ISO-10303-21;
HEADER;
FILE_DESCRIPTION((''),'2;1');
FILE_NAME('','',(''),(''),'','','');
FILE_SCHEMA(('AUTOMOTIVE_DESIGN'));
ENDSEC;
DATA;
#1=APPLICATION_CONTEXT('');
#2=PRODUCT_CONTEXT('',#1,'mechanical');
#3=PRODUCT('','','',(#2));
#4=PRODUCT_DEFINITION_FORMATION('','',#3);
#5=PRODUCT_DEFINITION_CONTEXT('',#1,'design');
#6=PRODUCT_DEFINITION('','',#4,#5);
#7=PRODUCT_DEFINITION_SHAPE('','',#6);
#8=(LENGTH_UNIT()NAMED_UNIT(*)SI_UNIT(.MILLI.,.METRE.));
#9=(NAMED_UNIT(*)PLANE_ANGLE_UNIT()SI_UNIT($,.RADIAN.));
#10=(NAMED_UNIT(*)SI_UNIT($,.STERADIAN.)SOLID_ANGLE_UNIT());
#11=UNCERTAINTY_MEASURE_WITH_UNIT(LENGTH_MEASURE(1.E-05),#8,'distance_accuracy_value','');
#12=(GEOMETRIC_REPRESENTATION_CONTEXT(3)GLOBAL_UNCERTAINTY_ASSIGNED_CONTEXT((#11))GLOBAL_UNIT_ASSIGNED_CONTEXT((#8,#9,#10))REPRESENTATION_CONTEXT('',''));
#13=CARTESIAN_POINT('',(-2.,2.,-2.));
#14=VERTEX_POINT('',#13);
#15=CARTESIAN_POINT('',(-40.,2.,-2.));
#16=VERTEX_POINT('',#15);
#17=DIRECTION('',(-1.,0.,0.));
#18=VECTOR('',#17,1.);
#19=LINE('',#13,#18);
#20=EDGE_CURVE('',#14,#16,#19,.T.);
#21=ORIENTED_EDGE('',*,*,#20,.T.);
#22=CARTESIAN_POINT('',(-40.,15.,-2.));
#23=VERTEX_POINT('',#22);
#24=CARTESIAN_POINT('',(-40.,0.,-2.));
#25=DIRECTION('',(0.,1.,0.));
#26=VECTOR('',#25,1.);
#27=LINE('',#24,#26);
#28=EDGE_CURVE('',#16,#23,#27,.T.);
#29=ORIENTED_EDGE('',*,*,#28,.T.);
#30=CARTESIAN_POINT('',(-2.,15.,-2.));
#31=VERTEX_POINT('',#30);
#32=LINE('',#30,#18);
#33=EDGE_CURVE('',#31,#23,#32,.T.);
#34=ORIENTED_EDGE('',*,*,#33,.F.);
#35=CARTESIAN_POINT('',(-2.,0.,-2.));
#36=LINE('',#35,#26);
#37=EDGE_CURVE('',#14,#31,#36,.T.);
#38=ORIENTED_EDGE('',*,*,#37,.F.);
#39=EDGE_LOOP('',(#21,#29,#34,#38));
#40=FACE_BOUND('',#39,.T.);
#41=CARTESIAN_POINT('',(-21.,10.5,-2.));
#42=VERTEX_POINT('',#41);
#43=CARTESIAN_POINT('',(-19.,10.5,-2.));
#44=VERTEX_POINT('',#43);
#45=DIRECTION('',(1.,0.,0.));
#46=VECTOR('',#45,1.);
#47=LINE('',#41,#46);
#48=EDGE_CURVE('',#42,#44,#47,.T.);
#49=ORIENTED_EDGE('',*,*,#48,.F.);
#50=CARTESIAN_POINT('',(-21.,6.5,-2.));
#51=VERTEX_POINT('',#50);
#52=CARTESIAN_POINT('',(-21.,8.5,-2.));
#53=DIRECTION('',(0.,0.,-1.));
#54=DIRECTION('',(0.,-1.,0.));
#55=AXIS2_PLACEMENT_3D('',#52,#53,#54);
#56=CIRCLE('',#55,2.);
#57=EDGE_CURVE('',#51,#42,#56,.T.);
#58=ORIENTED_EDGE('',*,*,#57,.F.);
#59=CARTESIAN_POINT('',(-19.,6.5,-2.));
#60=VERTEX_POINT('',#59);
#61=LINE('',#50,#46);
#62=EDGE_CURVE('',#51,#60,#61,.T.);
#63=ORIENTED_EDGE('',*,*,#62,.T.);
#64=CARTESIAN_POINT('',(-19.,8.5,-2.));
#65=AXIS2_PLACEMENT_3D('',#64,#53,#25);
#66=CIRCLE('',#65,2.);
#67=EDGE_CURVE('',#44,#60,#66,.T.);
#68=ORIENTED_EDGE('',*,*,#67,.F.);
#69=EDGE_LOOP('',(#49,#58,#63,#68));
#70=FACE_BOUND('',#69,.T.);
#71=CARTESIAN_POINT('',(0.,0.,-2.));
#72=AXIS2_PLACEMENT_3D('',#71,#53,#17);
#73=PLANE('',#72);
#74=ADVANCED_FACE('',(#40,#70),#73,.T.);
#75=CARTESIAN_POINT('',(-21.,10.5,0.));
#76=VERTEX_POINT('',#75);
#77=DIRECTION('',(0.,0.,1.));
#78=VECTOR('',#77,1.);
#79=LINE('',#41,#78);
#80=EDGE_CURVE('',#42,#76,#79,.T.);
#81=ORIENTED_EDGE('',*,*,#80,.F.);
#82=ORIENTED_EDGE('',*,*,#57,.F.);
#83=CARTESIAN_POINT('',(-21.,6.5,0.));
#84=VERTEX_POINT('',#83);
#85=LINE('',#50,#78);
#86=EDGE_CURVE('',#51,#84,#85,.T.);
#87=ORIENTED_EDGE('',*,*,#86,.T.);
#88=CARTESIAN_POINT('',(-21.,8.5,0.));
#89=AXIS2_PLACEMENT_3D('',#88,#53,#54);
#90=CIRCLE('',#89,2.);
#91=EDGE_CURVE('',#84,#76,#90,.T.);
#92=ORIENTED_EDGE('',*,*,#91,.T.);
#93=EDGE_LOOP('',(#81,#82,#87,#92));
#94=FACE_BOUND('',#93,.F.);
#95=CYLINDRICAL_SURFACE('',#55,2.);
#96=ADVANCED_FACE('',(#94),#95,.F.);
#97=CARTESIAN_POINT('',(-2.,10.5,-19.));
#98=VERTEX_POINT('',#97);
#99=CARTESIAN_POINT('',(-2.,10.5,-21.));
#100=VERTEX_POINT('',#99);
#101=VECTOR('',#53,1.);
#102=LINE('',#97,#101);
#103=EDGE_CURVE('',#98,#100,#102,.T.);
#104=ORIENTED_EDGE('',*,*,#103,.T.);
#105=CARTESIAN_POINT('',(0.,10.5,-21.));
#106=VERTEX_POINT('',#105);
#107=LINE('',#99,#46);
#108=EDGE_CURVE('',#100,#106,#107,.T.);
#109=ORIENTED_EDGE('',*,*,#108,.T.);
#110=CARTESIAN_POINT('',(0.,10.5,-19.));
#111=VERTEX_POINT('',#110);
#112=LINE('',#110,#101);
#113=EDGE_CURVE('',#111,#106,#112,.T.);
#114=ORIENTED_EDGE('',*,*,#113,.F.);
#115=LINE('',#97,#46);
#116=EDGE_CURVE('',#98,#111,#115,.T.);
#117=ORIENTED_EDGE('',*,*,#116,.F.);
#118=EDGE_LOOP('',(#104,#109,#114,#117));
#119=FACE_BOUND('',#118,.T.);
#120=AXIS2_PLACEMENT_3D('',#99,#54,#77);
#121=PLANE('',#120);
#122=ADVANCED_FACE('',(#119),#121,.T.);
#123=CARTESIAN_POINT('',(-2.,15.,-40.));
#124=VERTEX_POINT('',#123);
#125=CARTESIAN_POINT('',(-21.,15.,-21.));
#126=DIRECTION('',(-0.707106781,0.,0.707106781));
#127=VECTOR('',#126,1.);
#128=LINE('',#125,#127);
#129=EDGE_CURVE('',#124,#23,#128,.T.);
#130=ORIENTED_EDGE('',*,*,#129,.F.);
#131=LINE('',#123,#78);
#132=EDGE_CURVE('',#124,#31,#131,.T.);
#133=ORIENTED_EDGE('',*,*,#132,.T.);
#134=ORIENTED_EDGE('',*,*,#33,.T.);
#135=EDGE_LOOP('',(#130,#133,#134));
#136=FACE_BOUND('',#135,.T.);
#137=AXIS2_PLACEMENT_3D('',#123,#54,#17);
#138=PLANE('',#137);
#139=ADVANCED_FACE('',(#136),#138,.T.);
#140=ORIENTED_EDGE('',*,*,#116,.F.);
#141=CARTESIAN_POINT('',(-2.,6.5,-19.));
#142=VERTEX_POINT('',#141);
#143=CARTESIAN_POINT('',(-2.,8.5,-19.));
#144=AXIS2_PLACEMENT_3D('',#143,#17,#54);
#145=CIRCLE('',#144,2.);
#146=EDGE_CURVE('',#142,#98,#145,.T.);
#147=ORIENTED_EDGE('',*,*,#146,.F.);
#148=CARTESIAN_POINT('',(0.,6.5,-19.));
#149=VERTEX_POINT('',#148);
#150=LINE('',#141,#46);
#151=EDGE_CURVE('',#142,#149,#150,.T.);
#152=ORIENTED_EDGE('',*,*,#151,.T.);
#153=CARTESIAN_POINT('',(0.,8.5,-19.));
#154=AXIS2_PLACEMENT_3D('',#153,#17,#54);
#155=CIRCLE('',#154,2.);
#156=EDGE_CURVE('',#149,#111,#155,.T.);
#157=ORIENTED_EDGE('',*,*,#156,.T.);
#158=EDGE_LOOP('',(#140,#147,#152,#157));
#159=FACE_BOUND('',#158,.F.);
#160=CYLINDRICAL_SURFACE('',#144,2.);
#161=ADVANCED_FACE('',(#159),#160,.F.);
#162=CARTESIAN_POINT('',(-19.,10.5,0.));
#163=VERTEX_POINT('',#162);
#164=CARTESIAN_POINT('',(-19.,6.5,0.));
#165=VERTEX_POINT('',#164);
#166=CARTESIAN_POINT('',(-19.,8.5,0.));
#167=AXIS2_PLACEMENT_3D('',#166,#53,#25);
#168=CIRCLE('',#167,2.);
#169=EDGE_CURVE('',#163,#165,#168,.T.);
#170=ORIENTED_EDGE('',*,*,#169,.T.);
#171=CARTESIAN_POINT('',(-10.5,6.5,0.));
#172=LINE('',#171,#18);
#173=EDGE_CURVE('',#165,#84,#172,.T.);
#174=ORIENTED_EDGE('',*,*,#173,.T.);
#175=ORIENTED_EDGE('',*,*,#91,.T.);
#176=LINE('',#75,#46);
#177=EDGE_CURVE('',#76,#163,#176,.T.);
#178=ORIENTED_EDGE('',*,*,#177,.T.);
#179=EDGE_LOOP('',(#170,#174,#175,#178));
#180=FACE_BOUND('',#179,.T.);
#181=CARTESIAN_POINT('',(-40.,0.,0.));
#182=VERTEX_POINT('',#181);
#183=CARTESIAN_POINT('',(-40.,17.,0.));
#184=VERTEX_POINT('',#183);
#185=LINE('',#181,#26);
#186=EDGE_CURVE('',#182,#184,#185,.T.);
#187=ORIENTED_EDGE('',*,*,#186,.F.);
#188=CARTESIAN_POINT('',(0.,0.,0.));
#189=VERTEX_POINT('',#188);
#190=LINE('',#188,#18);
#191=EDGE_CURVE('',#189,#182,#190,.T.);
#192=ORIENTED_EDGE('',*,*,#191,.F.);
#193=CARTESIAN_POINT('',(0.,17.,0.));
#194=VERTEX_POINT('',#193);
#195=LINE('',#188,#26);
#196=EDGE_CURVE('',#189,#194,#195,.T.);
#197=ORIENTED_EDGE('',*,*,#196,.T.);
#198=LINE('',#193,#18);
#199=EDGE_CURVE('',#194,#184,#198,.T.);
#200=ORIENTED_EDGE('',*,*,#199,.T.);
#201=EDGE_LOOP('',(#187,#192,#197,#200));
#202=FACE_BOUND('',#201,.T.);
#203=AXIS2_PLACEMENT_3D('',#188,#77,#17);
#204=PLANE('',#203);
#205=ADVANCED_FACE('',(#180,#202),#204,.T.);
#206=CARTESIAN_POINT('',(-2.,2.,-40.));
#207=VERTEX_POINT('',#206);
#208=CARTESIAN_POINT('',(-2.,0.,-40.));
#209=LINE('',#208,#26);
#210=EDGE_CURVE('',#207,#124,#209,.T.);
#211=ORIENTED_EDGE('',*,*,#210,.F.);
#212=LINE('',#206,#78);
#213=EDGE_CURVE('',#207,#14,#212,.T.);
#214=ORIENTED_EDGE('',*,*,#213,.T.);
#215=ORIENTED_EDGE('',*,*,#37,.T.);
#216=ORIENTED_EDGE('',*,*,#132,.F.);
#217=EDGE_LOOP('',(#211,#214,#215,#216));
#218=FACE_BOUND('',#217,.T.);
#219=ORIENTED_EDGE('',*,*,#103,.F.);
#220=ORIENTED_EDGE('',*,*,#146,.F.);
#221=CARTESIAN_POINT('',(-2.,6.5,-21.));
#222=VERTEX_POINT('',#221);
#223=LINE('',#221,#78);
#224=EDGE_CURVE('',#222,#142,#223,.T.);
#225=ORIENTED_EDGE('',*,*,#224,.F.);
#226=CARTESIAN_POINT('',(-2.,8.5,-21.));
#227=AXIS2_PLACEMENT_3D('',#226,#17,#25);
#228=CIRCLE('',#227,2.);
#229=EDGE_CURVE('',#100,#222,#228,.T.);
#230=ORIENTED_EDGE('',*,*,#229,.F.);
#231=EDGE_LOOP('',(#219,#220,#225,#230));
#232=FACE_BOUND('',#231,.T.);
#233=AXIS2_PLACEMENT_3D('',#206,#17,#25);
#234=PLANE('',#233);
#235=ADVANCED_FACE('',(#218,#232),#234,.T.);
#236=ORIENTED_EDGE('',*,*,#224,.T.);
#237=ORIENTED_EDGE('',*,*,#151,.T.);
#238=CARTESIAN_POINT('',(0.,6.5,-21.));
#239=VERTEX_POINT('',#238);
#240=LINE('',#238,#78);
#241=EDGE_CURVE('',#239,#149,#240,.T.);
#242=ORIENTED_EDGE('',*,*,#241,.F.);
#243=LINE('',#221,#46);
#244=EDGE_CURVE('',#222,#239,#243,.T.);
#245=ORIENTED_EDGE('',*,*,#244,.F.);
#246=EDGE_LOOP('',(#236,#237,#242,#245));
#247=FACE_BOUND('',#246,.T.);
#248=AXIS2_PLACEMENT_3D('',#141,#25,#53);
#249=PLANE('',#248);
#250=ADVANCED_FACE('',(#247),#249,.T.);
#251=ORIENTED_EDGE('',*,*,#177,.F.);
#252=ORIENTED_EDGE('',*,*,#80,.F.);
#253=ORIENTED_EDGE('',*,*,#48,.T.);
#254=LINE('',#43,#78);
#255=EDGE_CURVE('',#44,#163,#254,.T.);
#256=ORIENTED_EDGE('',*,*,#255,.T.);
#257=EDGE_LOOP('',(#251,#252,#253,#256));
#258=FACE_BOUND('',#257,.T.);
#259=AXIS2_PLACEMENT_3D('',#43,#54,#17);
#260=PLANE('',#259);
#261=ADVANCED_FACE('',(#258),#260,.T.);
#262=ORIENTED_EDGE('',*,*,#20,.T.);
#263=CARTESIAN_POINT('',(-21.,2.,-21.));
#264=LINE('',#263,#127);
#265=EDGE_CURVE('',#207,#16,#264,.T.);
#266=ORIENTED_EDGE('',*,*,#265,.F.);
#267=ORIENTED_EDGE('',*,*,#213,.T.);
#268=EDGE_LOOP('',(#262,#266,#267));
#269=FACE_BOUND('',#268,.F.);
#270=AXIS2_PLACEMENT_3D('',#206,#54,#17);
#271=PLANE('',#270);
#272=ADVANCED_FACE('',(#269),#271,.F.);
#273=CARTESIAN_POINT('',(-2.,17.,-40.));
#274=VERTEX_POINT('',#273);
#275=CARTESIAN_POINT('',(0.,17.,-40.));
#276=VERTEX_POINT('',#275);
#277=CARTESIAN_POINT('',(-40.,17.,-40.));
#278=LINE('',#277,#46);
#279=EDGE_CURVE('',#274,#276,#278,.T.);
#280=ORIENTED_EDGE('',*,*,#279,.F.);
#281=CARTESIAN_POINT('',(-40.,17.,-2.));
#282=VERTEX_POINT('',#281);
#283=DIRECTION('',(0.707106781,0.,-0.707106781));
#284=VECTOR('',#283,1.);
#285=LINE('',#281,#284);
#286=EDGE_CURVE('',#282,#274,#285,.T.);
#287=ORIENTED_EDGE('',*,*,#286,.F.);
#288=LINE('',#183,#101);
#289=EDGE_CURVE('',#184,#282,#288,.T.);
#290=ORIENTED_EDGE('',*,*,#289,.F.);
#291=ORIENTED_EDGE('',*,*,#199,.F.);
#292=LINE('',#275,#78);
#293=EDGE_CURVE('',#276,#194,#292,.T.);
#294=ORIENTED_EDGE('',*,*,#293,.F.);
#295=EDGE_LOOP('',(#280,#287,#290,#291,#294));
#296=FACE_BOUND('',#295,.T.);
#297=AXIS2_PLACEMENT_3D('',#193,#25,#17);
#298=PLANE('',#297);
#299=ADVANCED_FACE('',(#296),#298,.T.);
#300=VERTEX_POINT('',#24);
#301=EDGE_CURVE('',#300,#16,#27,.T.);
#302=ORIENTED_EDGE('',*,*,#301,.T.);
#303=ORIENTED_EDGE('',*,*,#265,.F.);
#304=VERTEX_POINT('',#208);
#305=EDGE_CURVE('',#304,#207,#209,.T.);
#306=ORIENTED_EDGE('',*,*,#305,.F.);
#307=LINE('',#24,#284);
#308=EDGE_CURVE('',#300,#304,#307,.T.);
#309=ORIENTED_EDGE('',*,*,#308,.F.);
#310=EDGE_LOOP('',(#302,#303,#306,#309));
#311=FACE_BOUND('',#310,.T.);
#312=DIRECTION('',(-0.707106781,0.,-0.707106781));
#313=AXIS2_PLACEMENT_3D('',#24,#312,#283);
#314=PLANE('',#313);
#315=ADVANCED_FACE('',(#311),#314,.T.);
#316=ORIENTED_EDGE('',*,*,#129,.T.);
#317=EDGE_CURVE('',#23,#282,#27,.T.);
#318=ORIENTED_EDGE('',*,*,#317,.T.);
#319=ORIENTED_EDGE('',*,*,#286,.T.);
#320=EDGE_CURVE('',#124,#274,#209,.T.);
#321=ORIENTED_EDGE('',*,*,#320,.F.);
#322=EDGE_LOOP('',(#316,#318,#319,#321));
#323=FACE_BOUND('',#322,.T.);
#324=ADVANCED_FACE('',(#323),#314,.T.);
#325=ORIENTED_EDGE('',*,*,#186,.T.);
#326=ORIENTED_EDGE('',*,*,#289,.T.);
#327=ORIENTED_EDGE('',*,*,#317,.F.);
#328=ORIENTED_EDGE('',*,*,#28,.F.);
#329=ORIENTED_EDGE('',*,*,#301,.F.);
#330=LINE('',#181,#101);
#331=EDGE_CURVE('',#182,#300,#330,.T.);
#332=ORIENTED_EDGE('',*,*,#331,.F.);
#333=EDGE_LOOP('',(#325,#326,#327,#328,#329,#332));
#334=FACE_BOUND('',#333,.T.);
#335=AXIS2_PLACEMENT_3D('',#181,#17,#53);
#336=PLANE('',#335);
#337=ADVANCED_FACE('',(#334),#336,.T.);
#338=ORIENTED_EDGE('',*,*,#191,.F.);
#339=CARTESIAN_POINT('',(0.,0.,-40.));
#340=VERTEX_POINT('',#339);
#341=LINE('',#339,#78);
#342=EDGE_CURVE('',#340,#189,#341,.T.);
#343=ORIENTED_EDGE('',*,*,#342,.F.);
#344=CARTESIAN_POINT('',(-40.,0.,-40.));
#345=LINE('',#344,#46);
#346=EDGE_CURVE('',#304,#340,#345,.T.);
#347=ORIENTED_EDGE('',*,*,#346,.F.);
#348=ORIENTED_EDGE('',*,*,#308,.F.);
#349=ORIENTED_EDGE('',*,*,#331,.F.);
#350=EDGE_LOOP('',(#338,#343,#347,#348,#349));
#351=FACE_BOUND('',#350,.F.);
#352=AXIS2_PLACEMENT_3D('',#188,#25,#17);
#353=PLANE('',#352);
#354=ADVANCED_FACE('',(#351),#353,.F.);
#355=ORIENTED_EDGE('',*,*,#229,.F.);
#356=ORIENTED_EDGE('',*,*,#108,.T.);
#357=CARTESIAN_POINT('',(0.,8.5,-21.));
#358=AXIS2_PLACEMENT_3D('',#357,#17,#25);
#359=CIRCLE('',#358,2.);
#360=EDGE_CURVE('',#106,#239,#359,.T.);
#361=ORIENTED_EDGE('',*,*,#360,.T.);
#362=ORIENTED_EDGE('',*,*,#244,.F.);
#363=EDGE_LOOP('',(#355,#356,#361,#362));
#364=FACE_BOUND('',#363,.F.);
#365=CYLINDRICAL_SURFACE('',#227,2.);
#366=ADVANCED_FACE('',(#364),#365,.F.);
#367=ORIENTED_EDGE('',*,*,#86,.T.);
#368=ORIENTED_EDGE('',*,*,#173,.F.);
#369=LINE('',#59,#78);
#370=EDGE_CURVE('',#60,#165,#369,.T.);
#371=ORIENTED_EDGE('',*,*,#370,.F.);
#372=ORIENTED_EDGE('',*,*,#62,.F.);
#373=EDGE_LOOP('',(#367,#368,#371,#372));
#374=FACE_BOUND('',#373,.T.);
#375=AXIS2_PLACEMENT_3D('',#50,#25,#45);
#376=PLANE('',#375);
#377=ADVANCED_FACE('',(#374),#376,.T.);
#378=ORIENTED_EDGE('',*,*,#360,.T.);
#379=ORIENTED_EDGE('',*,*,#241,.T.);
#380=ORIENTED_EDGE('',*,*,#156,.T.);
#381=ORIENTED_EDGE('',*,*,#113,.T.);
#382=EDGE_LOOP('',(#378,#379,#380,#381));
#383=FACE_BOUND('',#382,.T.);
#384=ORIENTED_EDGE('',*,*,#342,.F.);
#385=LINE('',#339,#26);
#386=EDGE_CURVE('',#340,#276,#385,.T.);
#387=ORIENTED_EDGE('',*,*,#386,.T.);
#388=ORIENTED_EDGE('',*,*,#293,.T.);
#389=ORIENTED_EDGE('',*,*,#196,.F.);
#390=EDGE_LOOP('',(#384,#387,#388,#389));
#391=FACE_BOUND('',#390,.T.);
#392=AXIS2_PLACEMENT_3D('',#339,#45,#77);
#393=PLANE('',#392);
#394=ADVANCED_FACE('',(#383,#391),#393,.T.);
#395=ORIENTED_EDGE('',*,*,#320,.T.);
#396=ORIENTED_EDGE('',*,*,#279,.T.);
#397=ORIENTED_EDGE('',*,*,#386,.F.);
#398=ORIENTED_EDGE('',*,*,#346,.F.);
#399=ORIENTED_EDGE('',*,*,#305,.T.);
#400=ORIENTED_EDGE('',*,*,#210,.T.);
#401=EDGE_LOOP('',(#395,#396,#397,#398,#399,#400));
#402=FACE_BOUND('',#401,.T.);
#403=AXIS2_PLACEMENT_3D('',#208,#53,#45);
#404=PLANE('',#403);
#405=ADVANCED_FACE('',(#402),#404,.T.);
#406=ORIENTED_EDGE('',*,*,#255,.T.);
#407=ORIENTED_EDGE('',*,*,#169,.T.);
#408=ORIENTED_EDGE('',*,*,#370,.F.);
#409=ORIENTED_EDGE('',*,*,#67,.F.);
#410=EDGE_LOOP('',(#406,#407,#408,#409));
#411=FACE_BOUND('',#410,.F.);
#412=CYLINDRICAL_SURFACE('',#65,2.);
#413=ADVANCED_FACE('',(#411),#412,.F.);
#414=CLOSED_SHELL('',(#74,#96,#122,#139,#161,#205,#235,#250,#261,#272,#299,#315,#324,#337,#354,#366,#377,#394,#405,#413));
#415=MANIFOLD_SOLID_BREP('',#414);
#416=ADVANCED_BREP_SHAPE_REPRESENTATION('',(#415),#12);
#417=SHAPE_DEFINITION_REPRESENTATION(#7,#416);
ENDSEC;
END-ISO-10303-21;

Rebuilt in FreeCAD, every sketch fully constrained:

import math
import FreeCAD as App
import Part
import Sketcher

V = App.Vector
Q = App.Units.Quantity


def add_polygon(sketch, points):
    """Adds a closed chain of lines whose ends are joined by coincident constraints."""
    first, n = sketch.GeometryCount, len(points)
    for a, b in zip(points, points[1:] + points[:1]):
        sketch.addGeometry(Part.LineSegment(App.Vector(*a, 0), App.Vector(*b, 0)), False)
    for i in range(n):
        sketch.addConstraint(Sketcher.Constraint("Coincident", first + i, 2, first + (i + 1) % n, 1))

doc = App.newDocument("Part")
body = doc.addObject("PartDesign::Body", "Body")

# Sketch on XZ plane
sketch1 = body.newObject("Sketcher::SketchObject", "Sketch")
sketch1.AttachmentSupport = (doc.getObject("XZ_Plane"), [""])
sketch1.MapMode = "FlatFace"
add_polygon(sketch1, [(-40, 0), (0, 0), (0, -40), (-2, -40), (-40, -2)])  # lines 0-4
sketch1.addConstraint([
    Sketcher.Constraint("Horizontal", 0),
    Sketcher.Constraint("Vertical", 1),
    Sketcher.Constraint("Horizontal", 2),
    Sketcher.Constraint("Vertical", 4),
    Sketcher.Constraint("Coincident", 0, 2, -1, 1),
    Sketcher.Constraint("Equal", 0, 1),
    Sketcher.Constraint("Equal", 2, 4),
    Sketcher.Constraint("DistanceX", 0, 1, 0, 2, Q("40 mm")),
    Sketcher.Constraint("DistanceX", 2, 2, 2, 1, Q("2 mm")),
])
pad1 = body.newObject("PartDesign::Pad", "Pad")
pad1.Profile = sketch1
pad1.Length = 17
pad1.Reversed = True

# Sketch on XY plane
sketch2 = body.newObject("Sketcher::SketchObject", "Sketch001")
sketch2.AttachmentSupport = (doc.getObject("XY_Plane"), [""])
sketch2.MapMode = "FlatFace"
sketch2.AttachmentOffset = App.Placement(V(0, 0, -40), App.Rotation())
add_polygon(sketch2, [(-2, 15), (-2, 2), (-40, 2), (-40, 15)])  # lines 0-3
sketch2.addConstraint([
    Sketcher.Constraint("Vertical", 0),
    Sketcher.Constraint("Horizontal", 1),
    Sketcher.Constraint("Vertical", 2),
    Sketcher.Constraint("Horizontal", 3),
    Sketcher.Constraint("DistanceX", 0, 2, -1, 1, Q("2 mm")),
    Sketcher.Constraint("DistanceY", -1, 1, 0, 2, Q("2 mm")),
    Sketcher.Constraint("DistanceX", 1, 2, 1, 1, Q("38 mm")),
    Sketcher.Constraint("DistanceY", 0, 2, 0, 1, Q("13 mm")),
])
pocket1 = body.newObject("PartDesign::Pocket", "Pocket")
pocket1.Profile = sketch2
pocket1.Length = 38
pocket1.Reversed = True

# Sketch on XY plane
sketch3 = body.newObject("Sketcher::SketchObject", "Sketch002")
sketch3.AttachmentSupport = (doc.getObject("XY_Plane"), [""])
sketch3.MapMode = "FlatFace"
sketch3.AttachmentOffset = App.Placement(V(0, 0, -2), App.Rotation())
sketch3.addGeometry([
    Part.LineSegment(V(-21, 10.5, 0), V(-19, 10.5, 0)),
    Part.ArcOfCircle(Part.Circle(V(-19, 8.5, 0), V(0, 0, 1), 2), math.radians(-90), math.radians(90)),
    Part.LineSegment(V(-19, 6.5, 0), V(-21, 6.5, 0)),
    Part.ArcOfCircle(Part.Circle(V(-21, 8.5, 0), V(0, 0, 1), 2), math.radians(90), math.radians(270)),
], False)
sketch3.addConstraint([
    Sketcher.Constraint("Tangent", 0, 2, 1, 2),
    Sketcher.Constraint("Tangent", 1, 1, 2, 1),
    Sketcher.Constraint("Tangent", 2, 2, 3, 2),
    Sketcher.Constraint("Tangent", 3, 1, 0, 1),
    Sketcher.Constraint("Horizontal", 0),
    Sketcher.Constraint("Horizontal", 2),
    Sketcher.Constraint("Radius", 1, Q("2 mm")),
    Sketcher.Constraint("DistanceX", 0, 1, 0, 2, Q("2 mm")),
    Sketcher.Constraint("DistanceX", 1, 3, -1, 1, Q("19 mm")),
    Sketcher.Constraint("DistanceY", -1, 1, 1, 3, Q("8.5 mm")),
])
pocket2 = body.newObject("PartDesign::Pocket", "Pocket001")
pocket2.Profile = sketch3
pocket2.Length = 10
pocket2.Reversed = True

# Sketch on YZ plane
sketch4 = body.newObject("Sketcher::SketchObject", "Sketch003")
sketch4.AttachmentSupport = (doc.getObject("YZ_Plane"), [""])
sketch4.MapMode = "FlatFace"
sketch4.AttachmentOffset = App.Placement(V(0, 0, -2), App.Rotation())
sketch4.addGeometry([
    Part.LineSegment(V(10.5, -19, 0), V(10.5, -21, 0)),
    Part.ArcOfCircle(Part.Circle(V(8.5, -21, 0), V(0, 0, 1), 2), math.radians(180), math.radians(360)),
    Part.LineSegment(V(6.5, -21, 0), V(6.5, -19, 0)),
    Part.ArcOfCircle(Part.Circle(V(8.5, -19, 0), V(0, 0, 1), 2), math.radians(0), math.radians(180)),
], False)
sketch4.addConstraint([
    Sketcher.Constraint("Tangent", 0, 2, 1, 2),
    Sketcher.Constraint("Tangent", 1, 1, 2, 1),
    Sketcher.Constraint("Tangent", 2, 2, 3, 2),
    Sketcher.Constraint("Tangent", 3, 1, 0, 1),
    Sketcher.Constraint("Vertical", 0),
    Sketcher.Constraint("Vertical", 2),
    Sketcher.Constraint("Radius", 1, Q("2 mm")),
    Sketcher.Constraint("DistanceY", 0, 2, 0, 1, Q("2 mm")),
    Sketcher.Constraint("DistanceY", 1, 3, -1, 1, Q("21 mm")),
    Sketcher.Constraint("DistanceX", -1, 1, 1, 3, Q("8.5 mm")),
])
pocket3 = body.newObject("PartDesign::Pocket", "Pocket002")
pocket3.Profile = sketch4
pocket3.Length = 18.75
pocket3.Reversed = True

doc.recompute()
